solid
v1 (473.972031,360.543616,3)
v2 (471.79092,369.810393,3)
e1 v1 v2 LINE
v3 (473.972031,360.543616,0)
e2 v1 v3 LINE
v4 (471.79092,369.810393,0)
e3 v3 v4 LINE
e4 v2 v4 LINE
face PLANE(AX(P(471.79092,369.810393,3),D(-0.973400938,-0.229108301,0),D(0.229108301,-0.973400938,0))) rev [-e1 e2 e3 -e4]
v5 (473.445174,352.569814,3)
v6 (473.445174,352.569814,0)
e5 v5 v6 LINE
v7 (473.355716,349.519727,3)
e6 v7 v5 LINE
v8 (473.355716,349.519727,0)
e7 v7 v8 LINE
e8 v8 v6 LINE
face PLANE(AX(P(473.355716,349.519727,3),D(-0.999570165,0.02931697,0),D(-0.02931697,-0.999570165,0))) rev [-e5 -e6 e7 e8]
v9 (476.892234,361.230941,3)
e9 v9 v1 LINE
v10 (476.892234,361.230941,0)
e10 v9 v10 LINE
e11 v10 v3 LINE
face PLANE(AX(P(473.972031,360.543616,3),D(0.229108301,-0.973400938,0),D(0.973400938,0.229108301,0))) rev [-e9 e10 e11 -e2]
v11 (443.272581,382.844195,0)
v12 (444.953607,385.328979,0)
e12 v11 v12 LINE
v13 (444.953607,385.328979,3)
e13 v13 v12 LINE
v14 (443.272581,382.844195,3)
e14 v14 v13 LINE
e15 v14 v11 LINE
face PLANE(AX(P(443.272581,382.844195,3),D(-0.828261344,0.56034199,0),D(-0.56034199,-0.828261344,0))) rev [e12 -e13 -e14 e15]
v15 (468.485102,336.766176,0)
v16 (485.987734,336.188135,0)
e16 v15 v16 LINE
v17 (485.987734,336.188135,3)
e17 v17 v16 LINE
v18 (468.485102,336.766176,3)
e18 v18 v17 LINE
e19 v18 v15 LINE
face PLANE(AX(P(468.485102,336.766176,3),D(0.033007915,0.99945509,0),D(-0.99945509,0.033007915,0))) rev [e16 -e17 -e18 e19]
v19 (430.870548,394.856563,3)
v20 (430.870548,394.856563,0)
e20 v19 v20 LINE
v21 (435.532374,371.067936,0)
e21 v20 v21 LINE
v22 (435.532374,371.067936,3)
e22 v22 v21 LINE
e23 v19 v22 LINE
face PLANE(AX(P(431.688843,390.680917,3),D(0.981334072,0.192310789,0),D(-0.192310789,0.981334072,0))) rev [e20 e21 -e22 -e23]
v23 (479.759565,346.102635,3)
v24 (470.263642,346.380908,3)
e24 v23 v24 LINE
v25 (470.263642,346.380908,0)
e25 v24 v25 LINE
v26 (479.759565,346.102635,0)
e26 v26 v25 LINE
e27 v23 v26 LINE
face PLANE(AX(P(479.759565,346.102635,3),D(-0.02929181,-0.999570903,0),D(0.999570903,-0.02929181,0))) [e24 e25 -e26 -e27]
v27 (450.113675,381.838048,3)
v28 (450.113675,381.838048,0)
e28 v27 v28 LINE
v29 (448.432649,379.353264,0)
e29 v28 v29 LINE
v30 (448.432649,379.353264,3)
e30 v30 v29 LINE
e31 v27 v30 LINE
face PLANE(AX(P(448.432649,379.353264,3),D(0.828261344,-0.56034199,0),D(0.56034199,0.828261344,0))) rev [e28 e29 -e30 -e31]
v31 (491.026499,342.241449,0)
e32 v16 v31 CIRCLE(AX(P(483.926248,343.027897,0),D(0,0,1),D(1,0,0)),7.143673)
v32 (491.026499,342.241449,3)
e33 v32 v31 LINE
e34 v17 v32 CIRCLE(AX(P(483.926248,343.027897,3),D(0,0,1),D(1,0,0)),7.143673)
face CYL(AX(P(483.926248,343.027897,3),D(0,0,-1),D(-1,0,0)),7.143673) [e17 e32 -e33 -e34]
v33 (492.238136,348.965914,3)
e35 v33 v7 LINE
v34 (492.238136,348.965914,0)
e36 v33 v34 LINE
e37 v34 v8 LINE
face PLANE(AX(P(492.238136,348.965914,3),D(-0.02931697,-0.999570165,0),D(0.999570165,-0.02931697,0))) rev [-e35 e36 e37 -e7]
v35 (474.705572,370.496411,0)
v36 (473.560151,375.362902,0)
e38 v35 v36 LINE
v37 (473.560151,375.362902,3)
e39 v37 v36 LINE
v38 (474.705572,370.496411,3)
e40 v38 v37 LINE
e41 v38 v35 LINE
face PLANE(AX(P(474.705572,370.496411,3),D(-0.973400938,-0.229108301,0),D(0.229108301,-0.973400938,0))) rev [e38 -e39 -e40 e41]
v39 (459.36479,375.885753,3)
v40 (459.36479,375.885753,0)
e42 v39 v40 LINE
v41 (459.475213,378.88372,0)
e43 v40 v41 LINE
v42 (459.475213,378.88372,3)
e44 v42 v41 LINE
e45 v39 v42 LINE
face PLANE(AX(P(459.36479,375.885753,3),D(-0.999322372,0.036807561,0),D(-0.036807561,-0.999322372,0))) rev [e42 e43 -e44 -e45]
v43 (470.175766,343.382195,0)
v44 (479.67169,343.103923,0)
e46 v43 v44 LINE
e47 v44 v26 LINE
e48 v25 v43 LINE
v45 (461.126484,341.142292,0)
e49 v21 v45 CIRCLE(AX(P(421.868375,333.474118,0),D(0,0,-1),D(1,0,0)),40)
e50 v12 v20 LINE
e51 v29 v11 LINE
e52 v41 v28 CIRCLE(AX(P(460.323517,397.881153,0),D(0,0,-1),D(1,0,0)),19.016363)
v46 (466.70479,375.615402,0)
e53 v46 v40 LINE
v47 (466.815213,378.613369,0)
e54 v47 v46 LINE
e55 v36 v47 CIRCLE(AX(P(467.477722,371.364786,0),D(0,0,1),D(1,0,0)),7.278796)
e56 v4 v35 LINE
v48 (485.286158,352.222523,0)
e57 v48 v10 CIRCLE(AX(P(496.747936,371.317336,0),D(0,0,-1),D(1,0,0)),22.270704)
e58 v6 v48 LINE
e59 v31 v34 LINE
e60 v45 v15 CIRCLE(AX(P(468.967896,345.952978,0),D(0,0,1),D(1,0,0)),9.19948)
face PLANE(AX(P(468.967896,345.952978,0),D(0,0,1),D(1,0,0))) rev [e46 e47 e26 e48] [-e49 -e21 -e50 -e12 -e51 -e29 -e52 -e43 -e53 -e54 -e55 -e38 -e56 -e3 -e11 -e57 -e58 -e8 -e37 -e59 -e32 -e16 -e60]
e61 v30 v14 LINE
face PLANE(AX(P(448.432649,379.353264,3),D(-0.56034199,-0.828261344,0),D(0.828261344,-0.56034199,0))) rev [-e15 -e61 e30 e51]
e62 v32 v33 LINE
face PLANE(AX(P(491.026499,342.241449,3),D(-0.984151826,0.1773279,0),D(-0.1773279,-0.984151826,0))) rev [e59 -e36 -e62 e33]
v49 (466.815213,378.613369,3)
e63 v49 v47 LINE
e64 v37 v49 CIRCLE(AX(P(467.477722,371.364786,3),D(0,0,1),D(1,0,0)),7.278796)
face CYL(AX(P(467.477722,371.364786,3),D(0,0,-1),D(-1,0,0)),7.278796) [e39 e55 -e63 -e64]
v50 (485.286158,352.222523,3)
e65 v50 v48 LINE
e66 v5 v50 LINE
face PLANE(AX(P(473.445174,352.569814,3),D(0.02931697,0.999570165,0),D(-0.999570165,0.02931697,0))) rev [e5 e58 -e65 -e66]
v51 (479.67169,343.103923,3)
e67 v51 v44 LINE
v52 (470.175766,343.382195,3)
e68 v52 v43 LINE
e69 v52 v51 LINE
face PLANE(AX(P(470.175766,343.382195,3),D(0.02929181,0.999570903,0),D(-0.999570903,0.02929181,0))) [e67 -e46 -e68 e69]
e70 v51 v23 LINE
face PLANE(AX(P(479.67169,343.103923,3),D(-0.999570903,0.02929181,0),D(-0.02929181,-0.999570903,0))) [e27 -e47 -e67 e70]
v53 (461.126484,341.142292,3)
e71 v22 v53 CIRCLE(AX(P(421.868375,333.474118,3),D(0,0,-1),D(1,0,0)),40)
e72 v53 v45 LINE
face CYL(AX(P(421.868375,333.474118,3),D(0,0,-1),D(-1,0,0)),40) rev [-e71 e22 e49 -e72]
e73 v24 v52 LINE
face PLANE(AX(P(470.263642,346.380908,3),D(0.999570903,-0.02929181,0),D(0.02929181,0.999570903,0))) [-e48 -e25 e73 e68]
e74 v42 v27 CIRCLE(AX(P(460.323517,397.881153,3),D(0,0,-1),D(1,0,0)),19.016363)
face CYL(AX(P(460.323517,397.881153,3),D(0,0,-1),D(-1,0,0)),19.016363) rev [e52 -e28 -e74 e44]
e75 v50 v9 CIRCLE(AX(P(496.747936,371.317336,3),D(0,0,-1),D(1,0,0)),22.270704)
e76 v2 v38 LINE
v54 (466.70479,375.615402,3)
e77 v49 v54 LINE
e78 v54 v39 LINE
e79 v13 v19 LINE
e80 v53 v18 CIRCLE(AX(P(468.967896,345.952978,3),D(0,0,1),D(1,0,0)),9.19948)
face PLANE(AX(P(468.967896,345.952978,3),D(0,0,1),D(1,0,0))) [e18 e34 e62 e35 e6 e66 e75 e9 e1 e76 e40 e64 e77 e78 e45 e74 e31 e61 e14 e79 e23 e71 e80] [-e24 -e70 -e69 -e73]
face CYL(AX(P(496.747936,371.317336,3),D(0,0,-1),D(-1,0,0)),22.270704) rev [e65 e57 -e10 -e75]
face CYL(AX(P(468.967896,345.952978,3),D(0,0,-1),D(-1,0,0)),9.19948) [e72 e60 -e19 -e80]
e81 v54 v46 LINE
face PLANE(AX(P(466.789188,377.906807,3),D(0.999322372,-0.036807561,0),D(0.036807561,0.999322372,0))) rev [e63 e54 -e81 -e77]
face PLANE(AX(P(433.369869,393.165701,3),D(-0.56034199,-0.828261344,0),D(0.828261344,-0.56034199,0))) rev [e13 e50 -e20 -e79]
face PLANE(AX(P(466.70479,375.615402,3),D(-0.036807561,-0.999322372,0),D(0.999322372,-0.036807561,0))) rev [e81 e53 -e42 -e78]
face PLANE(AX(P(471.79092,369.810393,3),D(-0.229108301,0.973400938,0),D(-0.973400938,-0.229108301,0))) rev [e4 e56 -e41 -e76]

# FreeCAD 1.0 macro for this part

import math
import FreeCAD as App
import Part
import Sketcher
from FreeCAD import Vector
Q = App.Units.Quantity


def add_polygon(sketch, points):
    """Adds a closed chain of lines whose ends are joined by coincident constraints."""
    first, n = sketch.GeometryCount, len(points)
    for a, b in zip(points, points[1:] + points[:1]):
        sketch.addGeometry(Part.LineSegment(App.Vector(*a, 0), App.Vector(*b, 0)), False)
    for i in range(n):
        sketch.addConstraint(Sketcher.Constraint("Coincident", first + i, 2, first + (i + 1) % n, 1))

doc = App.newDocument("Part")
body = doc.addObject("PartDesign::Body", "Body")

sketch1 = doc.addObject("Sketcher::SketchObject", "Sketch")
body.addObject(sketch1)
sketch1.AttachmentSupport = (doc.XY_Plane, [""])
sketch1.MapMode = "FlatFace"
sketch1.addGeometry(Part.LineSegment(Vector(468.5, 336.8, 0), Vector(486, 336.2, 0)), False)
sketch1.addGeometry(Part.ArcOfCircle(Part.Circle(Vector(483.9, 343, 0), Vector(0, 0, 1), 7.1), math.radians(-73), math.radians(-6)), False)
sketch1.addGeometry(Part.LineSegment(Vector(491, 342.2, 0), Vector(492.2, 349, 0)), False)
sketch1.addGeometry(Part.LineSegment(Vector(492.2, 349, 0), Vector(473.4, 349.5, 0)), False)
sketch1.addGeometry(Part.LineSegment(Vector(473.4, 349.5, 0), Vector(473.4, 352.6, 0)), False)
sketch1.addGeometry(Part.LineSegment(Vector(473.4, 352.6, 0), Vector(485.3, 352.2, 0)), False)
sketch1.addGeometry(Part.ArcOfCircle(Part.Circle(Vector(496.7, 371.3, 0), Vector(0, 0, 1), 22.3), math.radians(-153), math.radians(-121)), False)
sketch1.addGeometry(Part.LineSegment(Vector(476.9, 361.2, 0), Vector(474, 360.5, 0)), False)
sketch1.addGeometry(Part.LineSegment(Vector(474, 360.5, 0), Vector(471.8, 369.8, 0)), False)
sketch1.addGeometry(Part.LineSegment(Vector(471.8, 369.8, 0), Vector(474.7, 370.5, 0)), False)
sketch1.addGeometry(Part.LineSegment(Vector(474.7, 370.5, 0), Vector(473.6, 375.4, 0)), False)
sketch1.addGeometry(Part.ArcOfCircle(Part.Circle(Vector(467.5, 371.4, 0), Vector(0, 0, 1), 7.3), math.radians(33), math.radians(95)), False)
sketch1.addGeometry(Part.LineSegment(Vector(466.8, 378.6, 0), Vector(466.8, 377.9, 0)), False)
sketch1.addGeometry(Part.LineSegment(Vector(466.8, 377.9, 0), Vector(466.7, 375.6, 0)), False)
sketch1.addGeometry(Part.LineSegment(Vector(466.7, 375.6, 0), Vector(459.4, 375.9, 0)), False)
sketch1.addGeometry(Part.LineSegment(Vector(459.4, 375.9, 0), Vector(459.5, 378.9, 0)), False)
sketch1.addGeometry(Part.ArcOfCircle(Part.Circle(Vector(460.3, 397.9, 0), Vector(0, 0, 1), 19), math.radians(-122), math.radians(-93)), False)
sketch1.addGeometry(Part.LineSegment(Vector(450.1, 381.8, 0), Vector(448.4, 379.4, 0)), False)
sketch1.addGeometry(Part.LineSegment(Vector(448.4, 379.4, 0), Vector(443.3, 382.8, 0)), False)
sketch1.addGeometry(Part.LineSegment(Vector(443.3, 382.8, 0), Vector(445, 385.3, 0)), False)
sketch1.addGeometry(Part.LineSegment(Vector(445, 385.3, 0), Vector(433.4, 393.2, 0)), False)
sketch1.addGeometry(Part.LineSegment(Vector(433.4, 393.2, 0), Vector(430.9, 394.9, 0)), False)
sketch1.addGeometry(Part.LineSegment(Vector(430.9, 394.9, 0), Vector(431.7, 390.7, 0)), False)
sketch1.addGeometry(Part.LineSegment(Vector(431.7, 390.7, 0), Vector(435.5, 371.1, 0)), False)
sketch1.addGeometry(Part.ArcOfCircle(Part.Circle(Vector(421.9, 333.5, 0), Vector(0, 0, 1), 40), math.radians(11), math.radians(70)), False)
sketch1.addGeometry(Part.ArcOfCircle(Part.Circle(Vector(469, 346, 0), Vector(0, 0, 1), 9.2), math.radians(-148), math.radians(-93)), False)
add_polygon(sketch1, [(479.7, 343.1), (470.2, 343.4), (470.3, 346.4), (479.8, 346.1)])
sketch1.addConstraint([
    Sketcher.Constraint("Coincident", 0, 2, 1, 1),
    Sketcher.Constraint("Coincident", 1, 2, 2, 1),
    Sketcher.Constraint("Coincident", 2, 2, 3, 1),
    Sketcher.Constraint("Coincident", 3, 2, 4, 1),
    Sketcher.Constraint("Coincident", 4, 2, 5, 1),
    Sketcher.Constraint("Coincident", 5, 2, 6, 2),
    Sketcher.Constraint("Coincident", 6, 1, 7, 1),
    Sketcher.Constraint("Coincident", 7, 2, 8, 1),
    Sketcher.Constraint("Coincident", 8, 2, 9, 1),
    Sketcher.Constraint("Coincident", 9, 2, 10, 1),
    Sketcher.Constraint("Coincident", 10, 2, 11, 1),
    Sketcher.Constraint("Coincident", 11, 2, 12, 1),
    Sketcher.Constraint("Coincident", 12, 2, 13, 1),
    Sketcher.Constraint("Coincident", 13, 2, 14, 1),
    Sketcher.Constraint("Coincident", 14, 2, 15, 1),
    Sketcher.Constraint("Coincident", 15, 2, 16, 2),
    Sketcher.Constraint("Coincident", 16, 1, 17, 1),
    Sketcher.Constraint("Coincident", 17, 2, 18, 1),
    Sketcher.Constraint("Coincident", 18, 2, 19, 1),
    Sketcher.Constraint("Coincident", 19, 2, 20, 1),
    Sketcher.Constraint("Coincident", 20, 2, 21, 1),
    Sketcher.Constraint("Coincident", 21, 2, 22, 1),
    Sketcher.Constraint("Coincident", 22, 2, 23, 1),
    Sketcher.Constraint("Coincident", 23, 2, 24, 2),
    Sketcher.Constraint("Coincident", 24, 1, 25, 1),
    Sketcher.Constraint("Coincident", 25, 2, 0, 1),
    Sketcher.Constraint("Perpendicular", 3, 4),
    Sketcher.Constraint("Perpendicular", 4, 5),
    Sketcher.Constraint("Perpendicular", 7, 8),
    Sketcher.Constraint("Perpendicular", 8, 9),
    Sketcher.Constraint("Perpendicular", 9, 10),
    Sketcher.Constraint("Parallel", 12, 13),
    Sketcher.Constraint("Perpendicular", 13, 14),
    Sketcher.Constraint("Perpendicular", 14, 15),
    Sketcher.Constraint("Perpendicular", 17, 18),
    Sketcher.Constraint("Perpendicular", 18, 19),
    Sketcher.Constraint("Perpendicular", 19, 20),
    Sketcher.Constraint("Parallel", 20, 21),
    Sketcher.Constraint("Parallel", 22, 23),
    Sketcher.Constraint("Perpendicular", 26, 27),
    Sketcher.Constraint("Perpendicular", 27, 28),
    Sketcher.Constraint("Perpendicular", 28, 29),
    Sketcher.Constraint("Equal", 7, 15),
    Sketcher.Constraint("Equal", 15, 17),
    Sketcher.Constraint("Equal", 17, 19),
    Sketcher.Constraint("Equal", 19, 27),
    Sketcher.Constraint("Radius", 24, Q("40 mm")),
    Sketcher.Constraint("Distance", 7, Q("3 mm")),
    Sketcher.Constraint("Distance", 26, Q("9.5 mm")),
    Sketcher.Constraint("Distance", 8, Q("9.52 mm")),
    Sketcher.Constraint("Distance", 18, Q("6.23 mm")),
    Sketcher.Constraint("Radius", 25, Q("9.19948 mm")),
    Sketcher.Constraint("DistanceX", 14, 2, 13, 2, Q("7.34 mm")),
    Sketcher.Constraint("DistanceX", 15, 2, 11, 2, Q("7.34 mm")),
    Sketcher.Constraint("Radius", 1, Q("7.143673 mm")),
    Sketcher.Constraint("Radius", 6, Q("22.270703 mm")),
    Sketcher.Constraint("Radius", 11, Q("7.278796 mm")),
    Sketcher.Constraint("Radius", 16, Q("19.016363 mm")),
    Sketcher.Constraint("Distance", 4, Q("3.051398 mm")),
    Sketcher.Constraint("DistanceX", -1, 1, 1, 2, Q("491.026499 mm")),
    Sketcher.Constraint("DistanceY", -1, 1, 10, 2, Q("375.362902 mm")),
    Sketcher.Constraint("DistanceY", -1, 1, 20, 2, Q("393.165701 mm")),
    Sketcher.Constraint("DistanceX", -1, 1, 25, 2, Q("468.485102 mm")),
    Sketcher.Constraint("DistanceX", 0, 2, 6, 3, Q("10.760202 mm")),
    Sketcher.Constraint("DistanceY", 0, 2, 6, 3, Q("35.1292 mm")),
    Sketcher.Constraint("DistanceX", 2, 2, 6, 3, Q("4.509799 mm")),
    Sketcher.Constraint("DistanceY", 2, 2, 4, 2, Q("3.6039 mm")),
    Sketcher.Constraint("DistanceX", 11, 3, 8, 2, Q("4.313198 mm")),
    Sketcher.Constraint("DistanceX", 13, 2, 12, 2, Q("0.084398 mm")),
    Sketcher.Constraint("DistanceY", 10, 2, 13, 2, Q("0.2525 mm")),
    Sketcher.Constraint("DistanceX", 21, 2, 17, 2, Q("17.562102 mm")),
    Sketcher.Constraint("DistanceY", 17, 2, 21, 2, Q("15.503299 mm")),
    Sketcher.Constraint("DistanceX", 23, 2, 16, 1, Q("14.581301 mm")),
    Sketcher.Constraint("Distance", 2, Q("6.832751 mm")),
    Sketcher.Constraint("Distance", 3, Q("18.89054 mm")),
    Sketcher.Constraint("Distance", 10, Q("4.999472 mm")),
    Sketcher.Constraint("Distance", 12, Q("0.707042 mm")),
    Sketcher.Constraint("Distance", 22, Q("4.25507 mm")),
    Sketcher.Constraint("Distance", 23, Q("19.986039 mm")),
    Sketcher.Constraint("DistanceY", -1, 1, 24, 3, Q("333.474118 mm")),
    Sketcher.Constraint("DistanceY", -1, 1, 25, 3, Q("345.952978 mm")),
    Sketcher.Constraint("DistanceY", -1, 1, 1, 2, Q("342.241449 mm")),
    Sketcher.Constraint("DistanceY", -1, 1, 6, 1, Q("361.230941 mm")),
    Sketcher.Constraint("DistanceX", -1, 1, 7, 2, Q("473.972031 mm")),
    Sketcher.Constraint("DistanceX", -1, 1, 8, 2, Q("471.79092 mm")),
    Sketcher.Constraint("DistanceY", -1, 1, 16, 1, Q("381.838048 mm")),
    Sketcher.Constraint("DistanceX", -1, 1, 17, 2, Q("448.432649 mm")),
    Sketcher.Constraint("DistanceX", -1, 1, 27, 2, Q("470.263642 mm")),
    Sketcher.Constraint("DistanceX", -1, 1, 29, 2, Q("479.67169 mm")),
    Sketcher.Constraint("DistanceY", 1, 3, 6, 3, Q("28.289438 mm")),
    Sketcher.Constraint("DistanceX", 25, 3, 1, 3, Q("14.958352 mm")),
    Sketcher.Constraint("DistanceY", 25, 2, 26, 2, Q("6.616019 mm")),
])
pad1 = doc.addObject("PartDesign::Pad", "Pad")
body.addObject(pad1)
pad1.Profile = sketch1
pad1.Length = 3

doc.recompute()
